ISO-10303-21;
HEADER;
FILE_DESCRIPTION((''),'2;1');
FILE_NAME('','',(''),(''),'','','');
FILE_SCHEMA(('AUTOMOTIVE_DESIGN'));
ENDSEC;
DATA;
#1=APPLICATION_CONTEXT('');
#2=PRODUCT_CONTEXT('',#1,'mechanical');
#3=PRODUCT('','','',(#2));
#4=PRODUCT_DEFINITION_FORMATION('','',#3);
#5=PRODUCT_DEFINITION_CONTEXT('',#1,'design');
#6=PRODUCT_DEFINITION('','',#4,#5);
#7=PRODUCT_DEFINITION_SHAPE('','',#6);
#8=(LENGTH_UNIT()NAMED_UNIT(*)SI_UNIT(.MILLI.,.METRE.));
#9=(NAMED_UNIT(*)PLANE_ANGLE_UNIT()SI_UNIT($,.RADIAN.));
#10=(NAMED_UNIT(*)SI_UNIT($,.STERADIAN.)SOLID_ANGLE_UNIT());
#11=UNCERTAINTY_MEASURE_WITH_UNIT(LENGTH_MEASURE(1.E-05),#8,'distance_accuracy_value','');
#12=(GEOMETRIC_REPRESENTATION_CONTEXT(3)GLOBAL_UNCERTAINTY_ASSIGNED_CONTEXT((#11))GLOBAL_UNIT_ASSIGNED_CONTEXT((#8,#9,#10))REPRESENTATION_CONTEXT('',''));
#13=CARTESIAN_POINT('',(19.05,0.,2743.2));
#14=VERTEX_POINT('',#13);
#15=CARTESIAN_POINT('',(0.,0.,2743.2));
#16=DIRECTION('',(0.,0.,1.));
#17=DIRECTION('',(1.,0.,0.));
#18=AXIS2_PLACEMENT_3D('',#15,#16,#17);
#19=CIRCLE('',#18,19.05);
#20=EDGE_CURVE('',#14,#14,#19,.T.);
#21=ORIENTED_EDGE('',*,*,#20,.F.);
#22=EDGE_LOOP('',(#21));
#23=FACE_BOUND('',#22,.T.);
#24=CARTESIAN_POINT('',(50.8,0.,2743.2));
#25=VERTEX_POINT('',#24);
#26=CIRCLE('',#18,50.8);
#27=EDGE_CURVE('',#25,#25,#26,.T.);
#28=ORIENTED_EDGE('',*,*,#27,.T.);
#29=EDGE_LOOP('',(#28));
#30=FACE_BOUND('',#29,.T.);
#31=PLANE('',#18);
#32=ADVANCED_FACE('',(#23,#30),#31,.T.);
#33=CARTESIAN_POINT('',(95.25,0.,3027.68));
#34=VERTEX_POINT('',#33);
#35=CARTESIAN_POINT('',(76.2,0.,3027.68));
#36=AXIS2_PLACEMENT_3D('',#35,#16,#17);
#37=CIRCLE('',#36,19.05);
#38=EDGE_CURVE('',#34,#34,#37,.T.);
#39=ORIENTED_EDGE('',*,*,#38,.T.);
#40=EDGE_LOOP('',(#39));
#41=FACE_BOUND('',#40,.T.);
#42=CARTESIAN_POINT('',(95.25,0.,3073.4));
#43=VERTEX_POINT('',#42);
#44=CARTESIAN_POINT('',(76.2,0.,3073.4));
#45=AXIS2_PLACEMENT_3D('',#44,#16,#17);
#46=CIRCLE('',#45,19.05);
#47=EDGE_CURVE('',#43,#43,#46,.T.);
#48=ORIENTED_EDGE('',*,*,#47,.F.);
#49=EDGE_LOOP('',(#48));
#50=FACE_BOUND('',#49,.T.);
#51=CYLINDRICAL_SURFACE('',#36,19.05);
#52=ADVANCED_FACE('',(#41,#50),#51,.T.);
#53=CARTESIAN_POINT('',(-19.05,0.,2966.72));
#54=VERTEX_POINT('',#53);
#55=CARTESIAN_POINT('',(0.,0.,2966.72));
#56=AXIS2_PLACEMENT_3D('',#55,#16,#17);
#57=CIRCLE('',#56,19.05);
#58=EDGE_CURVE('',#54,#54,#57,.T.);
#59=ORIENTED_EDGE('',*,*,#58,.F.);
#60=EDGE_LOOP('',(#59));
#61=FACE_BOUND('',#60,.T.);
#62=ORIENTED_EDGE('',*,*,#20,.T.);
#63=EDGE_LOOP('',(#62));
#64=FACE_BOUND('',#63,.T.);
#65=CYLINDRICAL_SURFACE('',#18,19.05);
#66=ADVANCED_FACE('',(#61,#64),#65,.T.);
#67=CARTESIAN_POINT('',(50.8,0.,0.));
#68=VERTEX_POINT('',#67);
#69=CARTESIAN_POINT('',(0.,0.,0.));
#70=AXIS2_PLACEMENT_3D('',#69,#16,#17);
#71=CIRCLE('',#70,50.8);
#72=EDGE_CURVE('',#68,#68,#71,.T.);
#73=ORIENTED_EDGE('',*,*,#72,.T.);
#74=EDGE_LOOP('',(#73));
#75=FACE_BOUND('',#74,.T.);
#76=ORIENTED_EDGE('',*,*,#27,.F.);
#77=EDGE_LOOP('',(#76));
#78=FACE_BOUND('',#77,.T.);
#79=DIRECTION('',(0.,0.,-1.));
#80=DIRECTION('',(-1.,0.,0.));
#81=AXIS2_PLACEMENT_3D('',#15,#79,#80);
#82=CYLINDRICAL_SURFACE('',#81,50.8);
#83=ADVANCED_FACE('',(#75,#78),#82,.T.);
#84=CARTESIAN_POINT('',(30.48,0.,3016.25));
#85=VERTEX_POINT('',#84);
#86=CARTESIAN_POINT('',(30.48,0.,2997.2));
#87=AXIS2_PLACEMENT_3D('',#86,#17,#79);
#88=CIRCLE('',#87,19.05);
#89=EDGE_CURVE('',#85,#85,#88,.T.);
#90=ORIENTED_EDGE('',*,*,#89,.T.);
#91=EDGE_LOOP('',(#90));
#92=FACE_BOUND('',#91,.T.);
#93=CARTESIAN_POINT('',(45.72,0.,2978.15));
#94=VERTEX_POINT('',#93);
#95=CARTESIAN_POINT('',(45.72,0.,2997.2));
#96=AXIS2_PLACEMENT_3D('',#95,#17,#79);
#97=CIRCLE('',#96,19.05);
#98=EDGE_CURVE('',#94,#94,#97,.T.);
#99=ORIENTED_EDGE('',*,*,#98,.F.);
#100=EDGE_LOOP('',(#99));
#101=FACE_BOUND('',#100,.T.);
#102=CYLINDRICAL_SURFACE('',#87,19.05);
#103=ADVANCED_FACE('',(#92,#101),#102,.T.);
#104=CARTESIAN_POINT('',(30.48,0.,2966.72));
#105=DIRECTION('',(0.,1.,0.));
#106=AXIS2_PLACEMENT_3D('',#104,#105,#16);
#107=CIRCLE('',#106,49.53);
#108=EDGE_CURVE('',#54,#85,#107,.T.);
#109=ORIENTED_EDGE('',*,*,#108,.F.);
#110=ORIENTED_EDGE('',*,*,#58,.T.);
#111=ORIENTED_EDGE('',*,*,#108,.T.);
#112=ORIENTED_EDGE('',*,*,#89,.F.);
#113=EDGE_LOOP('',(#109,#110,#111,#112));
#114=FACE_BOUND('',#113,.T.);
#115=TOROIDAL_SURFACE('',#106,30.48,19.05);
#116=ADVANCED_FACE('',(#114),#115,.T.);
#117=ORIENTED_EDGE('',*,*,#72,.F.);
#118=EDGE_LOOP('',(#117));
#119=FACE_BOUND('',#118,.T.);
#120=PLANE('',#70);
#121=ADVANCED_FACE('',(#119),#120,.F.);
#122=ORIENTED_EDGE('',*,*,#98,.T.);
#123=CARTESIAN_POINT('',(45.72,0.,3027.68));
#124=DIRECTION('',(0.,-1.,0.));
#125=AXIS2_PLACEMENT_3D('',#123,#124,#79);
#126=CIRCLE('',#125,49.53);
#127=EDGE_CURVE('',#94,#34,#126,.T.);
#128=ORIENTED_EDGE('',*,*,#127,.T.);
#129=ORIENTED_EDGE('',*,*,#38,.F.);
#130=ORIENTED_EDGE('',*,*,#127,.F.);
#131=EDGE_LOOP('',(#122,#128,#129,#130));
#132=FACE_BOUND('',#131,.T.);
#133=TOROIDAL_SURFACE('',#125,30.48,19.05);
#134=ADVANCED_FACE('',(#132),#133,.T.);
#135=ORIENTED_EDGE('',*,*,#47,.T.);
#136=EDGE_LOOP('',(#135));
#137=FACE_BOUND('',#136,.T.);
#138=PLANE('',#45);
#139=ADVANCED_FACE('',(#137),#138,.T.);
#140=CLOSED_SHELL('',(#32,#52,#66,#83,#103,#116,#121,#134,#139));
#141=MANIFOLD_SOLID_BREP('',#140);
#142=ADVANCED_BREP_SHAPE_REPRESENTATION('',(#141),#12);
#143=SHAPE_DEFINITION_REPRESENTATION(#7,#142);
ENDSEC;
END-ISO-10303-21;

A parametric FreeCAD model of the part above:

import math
import FreeCAD as App
import Part
import Sketcher

V = App.Vector
Q = App.Units.Quantity

doc = App.newDocument("Part")
body = doc.addObject("PartDesign::Body", "Body")

# Sketch on XY plane
sketch1 = body.newObject("Sketcher::SketchObject", "Sketch")
sketch1.AttachmentSupport = (doc.getObject("XY_Plane"), [""])
sketch1.MapMode = "FlatFace"
sketch1.addGeometry(Part.Circle(V(0, 0, 0), V(0, 0, 1), 50.8), False)
sketch1.addConstraint([
    Sketcher.Constraint("Coincident", 0, 3, -1, 1),
    Sketcher.Constraint("Diameter", 0, Q("4 in")),
])
pad1 = body.newObject("PartDesign::Pad", "Pad")
pad1.Profile = sketch1
pad1.Length = Q("108 in")

# Sketch on XY plane
sketch2 = body.newObject("Sketcher::SketchObject", "Sketch001")
sketch2.AttachmentSupport = (doc.getObject("XY_Plane"), [""])
sketch2.MapMode = "FlatFace"
sketch2.AttachmentOffset = App.Placement(V(0, 0, 108 * 25.4), App.Rotation())
sketch2.addGeometry(Part.Circle(V(0, 0, 0), V(0, 0, 1), 19.05), False)
sketch2.addConstraint([
    Sketcher.Constraint("Coincident", 0, 3, -1, 1),
    Sketcher.Constraint("Diameter", 0, Q("1.5 in")),
])

# Sketch on XZ plane
sketch3 = body.newObject("Sketcher::SketchObject", "Sketch002")
sketch3.AttachmentSupport = (doc.getObject("XZ_Plane"), [""])
sketch3.MapMode = "FlatFace"
sketch3.addGeometry([
    Part.LineSegment(V(0, 2743.2, 0), V(0, 2966.72, 0)),  # 0
    Part.ArcOfCircle(Part.Circle(V(30.48, 2966.72, 0), V(0, 0, 1), 30.48), math.radians(90), math.radians(180)),  # 1
    Part.LineSegment(V(30.48, 2997.2, 0), V(45.72, 2997.2, 0)),  # 2
    Part.ArcOfCircle(Part.Circle(V(45.72, 3027.68, 0), V(0, 0, 1), 30.48), math.radians(-90), math.radians(0)),  # 3
    Part.LineSegment(V(76.2, 3027.68, 0), V(76.2, 3073.4, 0)),  # 4
], False)
sketch3.addConstraint([
    Sketcher.Constraint("Tangent", 0, 2, 1, 2),
    Sketcher.Constraint("Tangent", 1, 1, 2, 1),
    Sketcher.Constraint("Tangent", 2, 2, 3, 1),
    Sketcher.Constraint("Tangent", 3, 2, 4, 1),
    Sketcher.Constraint("Vertical", 0),
    Sketcher.Constraint("Horizontal", 2),
    Sketcher.Constraint("Vertical", 4),
    Sketcher.Constraint("Equal", 1, 3),
    Sketcher.Constraint("PointOnObject", 0, 1, -2),
    Sketcher.Constraint("Radius", 1, Q("1.2 in")),
    Sketcher.Constraint("DistanceX", 2, 1, 2, 2, Q("0.6 in")),
    Sketcher.Constraint("DistanceY", 0, 1, 0, 2, Q("8.8 in")),
    Sketcher.Constraint("DistanceY", 4, 1, 4, 2, Q("1.8 in")),
    Sketcher.Constraint("DistanceY", -1, 1, 0, 1, Q("108 in")),
])
doc.recompute()

additivepipe = body.newObject("PartDesign::AdditivePipe", "AdditivePipe")
additivepipe.Profile = sketch2
additivepipe.Spine = (sketch3, ["Edge1", "Edge2", "Edge3", "Edge4", "Edge5"])

doc.recompute()
